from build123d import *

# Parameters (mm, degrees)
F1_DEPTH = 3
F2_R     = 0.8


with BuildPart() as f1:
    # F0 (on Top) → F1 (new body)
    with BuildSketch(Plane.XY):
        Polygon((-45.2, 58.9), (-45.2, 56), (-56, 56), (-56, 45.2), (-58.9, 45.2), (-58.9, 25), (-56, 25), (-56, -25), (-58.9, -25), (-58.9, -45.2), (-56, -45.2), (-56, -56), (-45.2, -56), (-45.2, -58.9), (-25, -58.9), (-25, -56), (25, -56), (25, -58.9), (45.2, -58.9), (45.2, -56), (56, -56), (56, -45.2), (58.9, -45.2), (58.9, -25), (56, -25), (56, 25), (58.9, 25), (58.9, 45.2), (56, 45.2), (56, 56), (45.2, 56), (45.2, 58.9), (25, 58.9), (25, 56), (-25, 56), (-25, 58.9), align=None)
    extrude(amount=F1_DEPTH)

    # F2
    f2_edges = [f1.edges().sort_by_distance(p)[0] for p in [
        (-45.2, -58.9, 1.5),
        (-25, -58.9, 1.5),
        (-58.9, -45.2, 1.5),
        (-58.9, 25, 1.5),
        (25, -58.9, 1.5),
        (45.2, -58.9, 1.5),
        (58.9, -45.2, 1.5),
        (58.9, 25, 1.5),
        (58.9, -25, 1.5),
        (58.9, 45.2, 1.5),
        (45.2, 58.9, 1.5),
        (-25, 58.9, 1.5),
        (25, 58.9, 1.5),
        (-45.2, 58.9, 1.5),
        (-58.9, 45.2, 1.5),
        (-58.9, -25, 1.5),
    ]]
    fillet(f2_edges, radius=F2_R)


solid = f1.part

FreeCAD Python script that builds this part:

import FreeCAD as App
import Part
import Sketcher
from FreeCAD import Vector
Q = App.Units.Quantity


def edges_at(feature, points):
    """Names of the edges that pass closest to the given points."""
    edges = feature.Shape.Edges
    near = lambda p: min(range(len(edges)), key=lambda i: edges[i].distToShape(Part.Vertex(*p))[0])
    return sorted({f"Edge{near(p) + 1}" for p in points})

doc = App.newDocument("Part")
body = doc.addObject("PartDesign::Body", "Body")

# Sketch on XY plane
sketch1 = doc.addObject("Sketcher::SketchObject", "Sketch")
body.addObject(sketch1)
sketch1.AttachmentSupport = (doc.XY_Plane, [""])
sketch1.MapMode = "FlatFace"
sketch1.addGeometry([
    Part.LineSegment(Vector(-45.2, 58.9, 0), Vector(-45.2, 56, 0)),  # 0
    Part.LineSegment(Vector(-45.2, 56, 0), Vector(-56, 56, 0)),  # 1
    Part.LineSegment(Vector(-56, 56, 0), Vector(-56, 45.2, 0)),  # 2
    Part.LineSegment(Vector(-56, 45.2, 0), Vector(-58.9, 45.2, 0)),  # 3
    Part.LineSegment(Vector(-58.9, 45.2, 0), Vector(-58.9, 25, 0)),  # 4
    Part.LineSegment(Vector(-58.9, 25, 0), Vector(-56, 25, 0)),  # 5
    Part.LineSegment(Vector(-56, 25, 0), Vector(-56, -25, 0)),  # 6
    Part.LineSegment(Vector(-56, -25, 0), Vector(-58.9, -25, 0)),  # 7
    Part.LineSegment(Vector(-58.9, -25, 0), Vector(-58.9, -45.2, 0)),  # 8
    Part.LineSegment(Vector(-58.9, -45.2, 0), Vector(-56, -45.2, 0)),  # 9
    Part.LineSegment(Vector(-56, -45.2, 0), Vector(-56, -56, 0)),  # 10
    Part.LineSegment(Vector(-56, -56, 0), Vector(-45.2, -56, 0)),  # 11
    Part.LineSegment(Vector(-45.2, -56, 0), Vector(-45.2, -58.9, 0)),  # 12
    Part.LineSegment(Vector(-45.2, -58.9, 0), Vector(-25, -58.9, 0)),  # 13
    Part.LineSegment(Vector(-25, -58.9, 0), Vector(-25, -56, 0)),  # 14
    Part.LineSegment(Vector(-25, -56, 0), Vector(25, -56, 0)),  # 15
    Part.LineSegment(Vector(25, -56, 0), Vector(25, -58.9, 0)),  # 16
    Part.LineSegment(Vector(25, -58.9, 0), Vector(45.2, -58.9, 0)),  # 17
    Part.LineSegment(Vector(45.2, -58.9, 0), Vector(45.2, -56, 0)),  # 18
    Part.LineSegment(Vector(45.2, -56, 0), Vector(56, -56, 0)),  # 19
    Part.LineSegment(Vector(56, -56, 0), Vector(56, -45.2, 0)),  # 20
    Part.LineSegment(Vector(56, -45.2, 0), Vector(58.9, -45.2, 0)),  # 21
    Part.LineSegment(Vector(58.9, -45.2, 0), Vector(58.9, -25, 0)),  # 22
    Part.LineSegment(Vector(58.9, -25, 0), Vector(56, -25, 0)),  # 23
    Part.LineSegment(Vector(56, -25, 0), Vector(56, 25, 0)),  # 24
    Part.LineSegment(Vector(56, 25, 0), Vector(58.9, 25, 0)),  # 25
    Part.LineSegment(Vector(58.9, 25, 0), Vector(58.9, 45.2, 0)),  # 26
    Part.LineSegment(Vector(58.9, 45.2, 0), Vector(56, 45.2, 0)),  # 27
    Part.LineSegment(Vector(56, 45.2, 0), Vector(56, 56, 0)),  # 28
    Part.LineSegment(Vector(56, 56, 0), Vector(45.2, 56, 0)),  # 29
    Part.LineSegment(Vector(45.2, 56, 0), Vector(45.2, 58.9, 0)),  # 30
    Part.LineSegment(Vector(45.2, 58.9, 0), Vector(25, 58.9, 0)),  # 31
    Part.LineSegment(Vector(25, 58.9, 0), Vector(25, 56, 0)),  # 32
    Part.LineSegment(Vector(25, 56, 0), Vector(-25, 56, 0)),  # 33
    Part.LineSegment(Vector(-25, 56, 0), Vector(-25, 58.9, 0)),  # 34
    Part.LineSegment(Vector(-25, 58.9, 0), Vector(-45.2, 58.9, 0)),  # 35
], False)
sketch1.addConstraint([
    Sketcher.Constraint("Coincident", 0, 2, 1, 1),
    Sketcher.Constraint("Coincident", 1, 2, 2, 1),
    Sketcher.Constraint("Coincident", 2, 2, 3, 1),
    Sketcher.Constraint("Coincident", 3, 2, 4, 1),
    Sketcher.Constraint("Coincident", 4, 2, 5, 1),
    Sketcher.Constraint("Coincident", 5, 2, 6, 1),
    Sketcher.Constraint("Coincident", 6, 2, 7, 1),
    Sketcher.Constraint("Coincident", 7, 2, 8, 1),
    Sketcher.Constraint("Coincident", 8, 2, 9, 1),
    Sketcher.Constraint("Coincident", 9, 2, 10, 1),
    Sketcher.Constraint("Coincident", 10, 2, 11, 1),
    Sketcher.Constraint("Coincident", 11, 2, 12, 1),
    Sketcher.Constraint("Coincident", 12, 2, 13, 1),
    Sketcher.Constraint("Coincident", 13, 2, 14, 1),
    Sketcher.Constraint("Coincident", 14, 2, 15, 1),
    Sketcher.Constraint("Coincident", 15, 2, 16, 1),
    Sketcher.Constraint("Coincident", 16, 2, 17, 1),
    Sketcher.Constraint("Coincident", 17, 2, 18, 1),
    Sketcher.Constraint("Coincident", 18, 2, 19, 1),
    Sketcher.Constraint("Coincident", 19, 2, 20, 1),
    Sketcher.Constraint("Coincident", 20, 2, 21, 1),
    Sketcher.Constraint("Coincident", 21, 2, 22, 1),
    Sketcher.Constraint("Coincident", 22, 2, 23, 1),
    Sketcher.Constraint("Coincident", 23, 2, 24, 1),
    Sketcher.Constraint("Coincident", 24, 2, 25, 1),
    Sketcher.Constraint("Coincident", 25, 2, 26, 1),
    Sketcher.Constraint("Coincident", 26, 2, 27, 1),
    Sketcher.Constraint("Coincident", 27, 2, 28, 1),
    Sketcher.Constraint("Coincident", 28, 2, 29, 1),
    Sketcher.Constraint("Coincident", 29, 2, 30, 1),
    Sketcher.Constraint("Coincident", 30, 2, 31, 1),
    Sketcher.Constraint("Coincident", 31, 2, 32, 1),
    Sketcher.Constraint("Coincident", 32, 2, 33, 1),
    Sketcher.Constraint("Coincident", 33, 2, 34, 1),
    Sketcher.Constraint("Coincident", 34, 2, 35, 1),
    Sketcher.Constraint("Coincident", 35, 2, 0, 1),
    Sketcher.Constraint("Vertical", 0),
    Sketcher.Constraint("Horizontal", 1),
    Sketcher.Constraint("Vertical", 2),
    Sketcher.Constraint("Horizontal", 3),
    Sketcher.Constraint("Vertical", 4),
    Sketcher.Constraint("Horizontal", 5),
    Sketcher.Constraint("Vertical", 6),
    Sketcher.Constraint("Horizontal", 7),
    Sketcher.Constraint("Vertical", 8),
    Sketcher.Constraint("Horizontal", 9),
    Sketcher.Constraint("Vertical", 10),
    Sketcher.Constraint("Horizontal", 11),
    Sketcher.Constraint("Vertical", 12),
    Sketcher.Constraint("Horizontal", 13),
    Sketcher.Constraint("Vertical", 14),
    Sketcher.Constraint("Horizontal", 15),
    Sketcher.Constraint("Vertical", 16),
    Sketcher.Constraint("Horizontal", 17),
    Sketcher.Constraint("Vertical", 18),
    Sketcher.Constraint("Horizontal", 19),
    Sketcher.Constraint("Vertical", 20),
    Sketcher.Constraint("Horizontal", 21),
    Sketcher.Constraint("Vertical", 22),
    Sketcher.Constraint("Horizontal", 23),
    Sketcher.Constraint("Vertical", 24),
    Sketcher.Constraint("Horizontal", 25),
    Sketcher.Constraint("Vertical", 26),
    Sketcher.Constraint("Horizontal", 27),
    Sketcher.Constraint("Vertical", 28),
    Sketcher.Constraint("Horizontal", 29),
    Sketcher.Constraint("Vertical", 30),
    Sketcher.Constraint("Horizontal", 31),
    Sketcher.Constraint("Vertical", 32),
    Sketcher.Constraint("Horizontal", 33),
    Sketcher.Constraint("Vertical", 34),
    Sketcher.Constraint("Horizontal", 35),
    Sketcher.Constraint("Symmetric", 0, 2, 18, 2, -1, 1),
    Sketcher.Constraint("Symmetric", 2, 2, 20, 2, -1, 1),
    Sketcher.Constraint("Symmetric", 4, 2, 22, 2, -1, 1),
    Sketcher.Constraint("Symmetric", 6, 2, 24, 2, -1, 1),
    Sketcher.Constraint("Symmetric", 8, 2, 26, 2, -1, 1),
    Sketcher.Constraint("Symmetric", 10, 2, 28, 2, -1, 1),
    Sketcher.Constraint("Symmetric", 12, 2, 30, 2, -1, 1),
    Sketcher.Constraint("Symmetric", 14, 2, 32, 2, -1, 1),
    Sketcher.Constraint("Symmetric", 16, 2, 34, 2, -1, 1),
    Sketcher.Constraint("Symmetric", 13, 2, 16, 2, -2),
    Sketcher.Constraint("Symmetric", 11, 2, 18, 2, -2),
    Sketcher.Constraint("Symmetric", 9, 2, 20, 2, -2),
    Sketcher.Constraint("Symmetric", 7, 2, 22, 2, -2),
    Sketcher.Constraint("Horizontal", 11, 2, 14, 2),
    Sketcher.Constraint("Vertical", 2, 2, 5, 2),
    Sketcher.Constraint("Equal", 27, 0),
    Sketcher.Constraint("Equal", 29, 2),
    Sketcher.Constraint("Equal", 35, 4),
    Sketcher.Constraint("Equal", 33, 6),
    Sketcher.Constraint("DistanceX", 15, 1, 15, 2, Q("50 mm")),
    Sketcher.Constraint("DistanceX", 1, 2, 1, 1, Q("10.8 mm")),
    Sketcher.Constraint("DistanceX", 3, 2, 3, 1, Q("2.9 mm")),
    Sketcher.Constraint("DistanceX", 13, 1, 13, 2, Q("20.2 mm")),
])
pad1 = doc.addObject("PartDesign::Pad", "Pad")
body.addObject(pad1)
pad1.Profile = sketch1
pad1.Length = 3
doc.recompute()

fillet = doc.addObject("PartDesign::Fillet", "Fillet")
body.addObject(fillet)
fillet.Base = (pad1, edges_at(pad1, [
    (-45.2, -58.9, 1.5),
    (-25, -58.9, 1.5),
    (-58.9, -45.2, 1.5),
    (-58.9, 25, 1.5),
    (25, -58.9, 1.5),
    (45.2, -58.9, 1.5),
    (58.9, -45.2, 1.5),
    (58.9, 25, 1.5),
    (58.9, -25, 1.5),
    (58.9, 45.2, 1.5),
    (45.2, 58.9, 1.5),
    (-25, 58.9, 1.5),
    (25, 58.9, 1.5),
    (-45.2, 58.9, 1.5),
    (-58.9, 45.2, 1.5),
    (-58.9, -25, 1.5),
]))
fillet.Radius = 0.8

doc.recompute()
